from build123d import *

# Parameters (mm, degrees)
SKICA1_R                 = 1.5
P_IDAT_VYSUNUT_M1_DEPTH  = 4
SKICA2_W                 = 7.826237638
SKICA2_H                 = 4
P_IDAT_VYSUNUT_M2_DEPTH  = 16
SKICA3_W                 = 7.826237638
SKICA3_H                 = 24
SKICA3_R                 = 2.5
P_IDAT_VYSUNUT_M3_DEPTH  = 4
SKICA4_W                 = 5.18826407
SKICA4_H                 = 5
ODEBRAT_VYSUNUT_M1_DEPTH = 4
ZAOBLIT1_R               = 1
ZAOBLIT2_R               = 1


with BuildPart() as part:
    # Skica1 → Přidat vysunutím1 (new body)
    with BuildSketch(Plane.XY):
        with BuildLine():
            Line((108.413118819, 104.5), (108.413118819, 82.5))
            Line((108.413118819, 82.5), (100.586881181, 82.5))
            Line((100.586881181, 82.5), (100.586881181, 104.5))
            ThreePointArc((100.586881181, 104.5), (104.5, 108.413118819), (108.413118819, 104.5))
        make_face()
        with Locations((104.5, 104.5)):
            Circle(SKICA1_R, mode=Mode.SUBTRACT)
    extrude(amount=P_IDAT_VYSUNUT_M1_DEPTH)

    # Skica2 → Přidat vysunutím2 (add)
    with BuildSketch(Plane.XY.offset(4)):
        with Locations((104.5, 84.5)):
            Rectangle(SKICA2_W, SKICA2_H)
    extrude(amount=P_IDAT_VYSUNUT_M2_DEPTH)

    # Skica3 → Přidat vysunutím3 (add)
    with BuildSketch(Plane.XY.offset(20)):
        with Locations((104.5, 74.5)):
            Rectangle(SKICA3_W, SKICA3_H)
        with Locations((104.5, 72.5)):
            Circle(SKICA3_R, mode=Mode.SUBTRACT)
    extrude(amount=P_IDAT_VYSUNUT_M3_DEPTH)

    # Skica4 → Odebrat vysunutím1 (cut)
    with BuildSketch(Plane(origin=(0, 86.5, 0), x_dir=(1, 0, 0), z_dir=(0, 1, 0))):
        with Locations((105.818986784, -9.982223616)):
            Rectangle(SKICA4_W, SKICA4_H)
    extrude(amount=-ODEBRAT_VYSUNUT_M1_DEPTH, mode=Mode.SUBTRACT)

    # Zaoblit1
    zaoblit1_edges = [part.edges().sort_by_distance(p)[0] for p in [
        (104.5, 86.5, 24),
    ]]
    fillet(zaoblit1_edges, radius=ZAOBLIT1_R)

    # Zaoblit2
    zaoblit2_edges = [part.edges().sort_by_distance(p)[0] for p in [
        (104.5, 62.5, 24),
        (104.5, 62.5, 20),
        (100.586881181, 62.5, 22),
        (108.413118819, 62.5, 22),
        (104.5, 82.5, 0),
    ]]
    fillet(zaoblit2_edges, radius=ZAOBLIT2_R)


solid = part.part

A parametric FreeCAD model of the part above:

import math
import FreeCAD as App
import Part
import Sketcher
from FreeCAD import Vector


def edges_at(feature, points):
    """Names of the edges that pass closest to the given points."""
    edges = feature.Shape.Edges
    near = lambda p: min(range(len(edges)), key=lambda i: edges[i].distToShape(Part.Vertex(*p))[0])
    return sorted({f"Edge{near(p) + 1}" for p in points})


def add_polygon(sketch, points):
    """Adds a closed chain of lines whose ends are joined by coincident constraints."""
    first, n = sketch.GeometryCount, len(points)
    for a, b in zip(points, points[1:] + points[:1]):
        sketch.addGeometry(Part.LineSegment(App.Vector(*a, 0), App.Vector(*b, 0)), False)
    for i in range(n):
        sketch.addConstraint(Sketcher.Constraint("Coincident", first + i, 2, first + (i + 1) % n, 1))

doc = App.newDocument("Part")
params = doc.addObject("Spreadsheet::Sheet", "Params")
for row, (alias, value) in enumerate([
    ("sketch1_diameter", "3 mm"),
    ("sketch1_height", "22 mm"),
    ("pad1_length", "4 mm"),
    ("sketch2_height", "4 mm"),
    ("pad2_length", "16 mm"),
    ("sketch3_diameter", "5 mm"),
    ("sketch3_height", "24 mm"),
    ("pad3_length", "4 mm"),
    ("sketch4_height", "5 mm"),
    ("pocket1_length", "4 mm"),
    ("fillet_radius", "1 mm"),
    ("fillet2_radius", "1 mm"),
], start=1):
    params.set(f"A{row}", alias)
    params.set(f"B{row}", "=" + value)
    params.setAlias(f"B{row}", alias)

body = doc.addObject("PartDesign::Body", "Body")

# Sketch on XY plane
sketch1 = body.newObject("Sketcher::SketchObject", "Sketch")
sketch1.AttachmentSupport = (doc.getObject("XY_Plane"), [""])
sketch1.MapMode = "FlatFace"
sketch1.addGeometry([
    Part.LineSegment(Vector(108.4, 82.5, 0), Vector(108.4, 104.5, 0)),  # 0
    Part.ArcOfCircle(Part.Circle(Vector(104.5, 104.5, 0), Vector(0, 0, 1), 3.9), math.radians(0), math.radians(180)),  # 1
    Part.LineSegment(Vector(100.6, 104.5, 0), Vector(100.6, 82.5, 0)),  # 2
    Part.LineSegment(Vector(100.6, 82.5, 0), Vector(108.4, 82.5, 0)),  # 3
    Part.Circle(Vector(104.5, 104.5, 0), Vector(0, 0, 1), 1.5),  # 4
], False)
sketch1.addConstraint([
    Sketcher.Constraint("Tangent", 0, 2, 1, 1),
    Sketcher.Constraint("Tangent", 1, 2, 2, 1),
    Sketcher.Constraint("Coincident", 2, 2, 3, 1),
    Sketcher.Constraint("Coincident", 3, 2, 0, 1),
    Sketcher.Constraint("Vertical", 0),
    Sketcher.Constraint("Vertical", 2),
    Sketcher.Constraint("Horizontal", 3),
    Sketcher.Constraint("Coincident", 4, 3, 1, 3),
    Sketcher.Constraint("Diameter", 4, 3.0),
    Sketcher.Constraint("DistanceY", 0, 1, 0, 2, 22.0),
    Sketcher.Constraint("DistanceX", -1, 1, 1, 3, 104.5),
    Sketcher.Constraint("DistanceY", -1, 1, 1, 3, 104.5),
    Sketcher.Constraint("Radius", 1, 3.913119),
])
sketch1.setExpression("Constraints[8]", "Params.sketch1_diameter")
sketch1.setExpression("Constraints[9]", "Params.sketch1_height")
pad1 = body.newObject("PartDesign::Pad", "Pad")
pad1.Profile = sketch1
pad1.setExpression("Length", "Params.pad1_length")

# Sketch on XY plane
sketch2 = body.newObject("Sketcher::SketchObject", "Sketch001")
sketch2.AttachmentSupport = (doc.getObject("XY_Plane"), [""])
sketch2.MapMode = "FlatFace"
sketch2.AttachmentOffset = App.Placement(Vector(0, 0, 4), App.Rotation())
add_polygon(sketch2, [(100.6, 86.5), (100.6, 82.5), (108.4, 82.5), (108.4, 86.5)])  # lines 0-3
sketch2.addConstraint([
    Sketcher.Constraint("Vertical", 0),
    Sketcher.Constraint("Horizontal", 1),
    Sketcher.Constraint("Vertical", 2),
    Sketcher.Constraint("Horizontal", 3),
    Sketcher.Constraint("DistanceY", 0, 2, 0, 1, 4.0),
    Sketcher.Constraint("DistanceY", -1, 1, 0, 2, 82.5),
    Sketcher.Constraint("DistanceX", 1, 1, 1, 2, 7.826238),
    Sketcher.Constraint("DistanceX", -1, 1, 0, 2, 100.586881),
])
sketch2.setExpression("Constraints[8]", "Params.sketch2_height")
pad2 = body.newObject("PartDesign::Pad", "Pad001")
pad2.Profile = sketch2
pad2.setExpression("Length", "Params.pad2_length")

# Sketch on XY plane
sketch3 = body.newObject("Sketcher::SketchObject", "Sketch002")
sketch3.AttachmentSupport = (doc.getObject("XY_Plane"), [""])
sketch3.MapMode = "FlatFace"
sketch3.AttachmentOffset = App.Placement(Vector(0, 0, 20), App.Rotation())
add_polygon(sketch3, [(100.6, 86.5), (100.6, 62.5), (108.4, 62.5), (108.4, 86.5)])  # lines 0-3
sketch3.addGeometry(Part.Circle(Vector(104.5, 72.5, 0), Vector(0, 0, 1), 2.5), False)  # 4
sketch3.addConstraint([
    Sketcher.Constraint("Vertical", 0),
    Sketcher.Constraint("Horizontal", 1),
    Sketcher.Constraint("Vertical", 2),
    Sketcher.Constraint("Horizontal", 3),
    Sketcher.Constraint("Diameter", 4, 5.0),
    Sketcher.Constraint("DistanceY", 0, 2, 0, 1, 24.0),
    Sketcher.Constraint("DistanceY", 0, 2, 4, 3, 10.0),
    Sketcher.Constraint("DistanceX", -1, 1, 4, 3, 104.5),
    Sketcher.Constraint("DistanceY", -1, 1, 4, 3, 72.5),
    Sketcher.Constraint("DistanceX", 1, 1, 1, 2, 7.826238),
    Sketcher.Constraint("DistanceX", -1, 1, 0, 2, 100.586881),
])
sketch3.setExpression("Constraints[8]", "Params.sketch3_diameter")
sketch3.setExpression("Constraints[9]", "Params.sketch3_height")
pad3 = body.newObject("PartDesign::Pad", "Pad002")
pad3.Profile = sketch3
pad3.setExpression("Length", "Params.pad3_length")

# Sketch on XZ plane
sketch4 = body.newObject("Sketcher::SketchObject", "Sketch003")
sketch4.AttachmentSupport = (doc.getObject("XZ_Plane"), [""])
sketch4.MapMode = "FlatFace"
sketch4.AttachmentOffset = App.Placement(Vector(0, 0, -86.5), App.Rotation())
add_polygon(sketch4, [(103, 7), (103, 12), (108, 12), (108, 7)])  # lines 0-3
sketch4.addConstraint([
    Sketcher.Constraint("Vertical", 0),
    Sketcher.Constraint("Horizontal", 1),
    Sketcher.Constraint("Vertical", 2),
    Sketcher.Constraint("Horizontal", 3),
    Sketcher.Constraint("DistanceY", 0, 1, 0, 2, 5.0),
    Sketcher.Constraint("DistanceX", 1, 1, 1, 2, 5.188264),
    Sketcher.Constraint("DistanceX", -1, 1, 1, 2, 108.413119),
    Sketcher.Constraint("DistanceY", -1, 1, 0, 2, 12.482224),
])
sketch4.setExpression("Constraints[8]", "Params.sketch4_height")
pocket1 = body.newObject("PartDesign::Pocket", "Pocket")
pocket1.Profile = sketch4
pocket1.setExpression("Length", "Params.pocket1_length")
pocket1.Reversed = True
doc.recompute()

fillet = body.newObject("PartDesign::Fillet", "Fillet")
fillet.Base = (pocket1, edges_at(pocket1, [(104.5, 86.5, 24)]))
fillet.setExpression("Radius", "Params.fillet_radius")
doc.recompute()

fillet2 = body.newObject("PartDesign::Fillet", "Fillet001")
fillet2.Base = (fillet, edges_at(fillet, [
    (104.5, 62.5, 24),
    (104.5, 62.5, 20),
    (100.587, 62.5, 22),
    (108.413, 62.5, 22),
    (104.5, 82.5, 0),
]))
fillet2.setExpression("Radius", "Params.fillet2_radius")

doc.recompute()
